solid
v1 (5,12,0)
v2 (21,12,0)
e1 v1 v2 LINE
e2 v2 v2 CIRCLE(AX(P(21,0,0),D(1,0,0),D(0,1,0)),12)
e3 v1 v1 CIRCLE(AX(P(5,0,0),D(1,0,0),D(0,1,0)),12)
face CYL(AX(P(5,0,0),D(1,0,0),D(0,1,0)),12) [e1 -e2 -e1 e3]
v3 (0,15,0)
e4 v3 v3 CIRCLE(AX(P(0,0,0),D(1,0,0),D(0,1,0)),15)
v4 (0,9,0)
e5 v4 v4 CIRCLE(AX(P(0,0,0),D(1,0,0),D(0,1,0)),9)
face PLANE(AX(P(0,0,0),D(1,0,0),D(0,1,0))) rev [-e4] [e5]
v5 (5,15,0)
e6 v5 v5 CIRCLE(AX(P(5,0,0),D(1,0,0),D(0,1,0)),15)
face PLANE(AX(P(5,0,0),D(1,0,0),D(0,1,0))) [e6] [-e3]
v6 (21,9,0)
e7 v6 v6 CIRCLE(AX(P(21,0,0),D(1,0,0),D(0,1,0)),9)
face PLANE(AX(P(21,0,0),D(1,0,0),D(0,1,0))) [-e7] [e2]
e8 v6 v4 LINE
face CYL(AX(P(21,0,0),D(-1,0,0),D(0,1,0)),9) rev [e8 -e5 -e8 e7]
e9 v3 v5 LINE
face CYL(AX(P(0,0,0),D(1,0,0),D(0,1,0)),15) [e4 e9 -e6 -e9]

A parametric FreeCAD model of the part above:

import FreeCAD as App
import Part
import Sketcher
Q = App.Units.Quantity


def add_polygon(sketch, points):
    """Adds a closed chain of lines whose ends are joined by coincident constraints."""
    first, n = sketch.GeometryCount, len(points)
    for a, b in zip(points, points[1:] + points[:1]):
        sketch.addGeometry(Part.LineSegment(App.Vector(*a, 0), App.Vector(*b, 0)), False)
    for i in range(n):
        sketch.addConstraint(Sketcher.Constraint("Coincident", first + i, 2, first + (i + 1) % n, 1))

doc = App.newDocument("Part")
body = doc.addObject("PartDesign::Body", "Body")

# Sketch on XY plane
sketch1 = doc.addObject("Sketcher::SketchObject", "Sketch")
body.addObject(sketch1)
sketch1.AttachmentSupport = (doc.XY_Plane, [""])
sketch1.MapMode = "FlatFace"
add_polygon(sketch1, [(0, 15), (0, 9), (21, 9), (21, 12), (5, 12), (5, 15)])  # lines 0-5
sketch1.addConstraint(Sketcher.Constraint("Vertical", 0))
sketch1.addConstraint(Sketcher.Constraint("Horizontal", 1))
sketch1.addConstraint(Sketcher.Constraint("Vertical", 2))
sketch1.addConstraint(Sketcher.Constraint("Horizontal", 3))
sketch1.addConstraint(Sketcher.Constraint("Vertical", 4))
sketch1.addConstraint(Sketcher.Constraint("Horizontal", 5))
sketch1.addConstraint(Sketcher.Constraint("PointOnObject", 0, 2, -2))
sketch1.addConstraint(Sketcher.Constraint("Equal", 2, 4))
sketch1.addConstraint(Sketcher.Constraint("DistanceX", 1, 1, 1, 2, Q("21 mm")))
sketch1.addConstraint(Sketcher.Constraint("DistanceX", 3, 2, 3, 1, Q("16 mm")))
sketch1.addConstraint(Sketcher.Constraint("DistanceY", 0, 2, 0, 1, Q("6 mm")))
sketch1.addConstraint(Sketcher.Constraint("DistanceY", -1, 1, 0, 2, Q("9 mm")))
revolution = doc.addObject("PartDesign::Revolution", "Revolution")
body.addObject(revolution)
revolution.Profile = sketch1
revolution.ReferenceAxis = (sketch1, ["H_Axis"])
revolution.Angle = 360

doc.recompute()
